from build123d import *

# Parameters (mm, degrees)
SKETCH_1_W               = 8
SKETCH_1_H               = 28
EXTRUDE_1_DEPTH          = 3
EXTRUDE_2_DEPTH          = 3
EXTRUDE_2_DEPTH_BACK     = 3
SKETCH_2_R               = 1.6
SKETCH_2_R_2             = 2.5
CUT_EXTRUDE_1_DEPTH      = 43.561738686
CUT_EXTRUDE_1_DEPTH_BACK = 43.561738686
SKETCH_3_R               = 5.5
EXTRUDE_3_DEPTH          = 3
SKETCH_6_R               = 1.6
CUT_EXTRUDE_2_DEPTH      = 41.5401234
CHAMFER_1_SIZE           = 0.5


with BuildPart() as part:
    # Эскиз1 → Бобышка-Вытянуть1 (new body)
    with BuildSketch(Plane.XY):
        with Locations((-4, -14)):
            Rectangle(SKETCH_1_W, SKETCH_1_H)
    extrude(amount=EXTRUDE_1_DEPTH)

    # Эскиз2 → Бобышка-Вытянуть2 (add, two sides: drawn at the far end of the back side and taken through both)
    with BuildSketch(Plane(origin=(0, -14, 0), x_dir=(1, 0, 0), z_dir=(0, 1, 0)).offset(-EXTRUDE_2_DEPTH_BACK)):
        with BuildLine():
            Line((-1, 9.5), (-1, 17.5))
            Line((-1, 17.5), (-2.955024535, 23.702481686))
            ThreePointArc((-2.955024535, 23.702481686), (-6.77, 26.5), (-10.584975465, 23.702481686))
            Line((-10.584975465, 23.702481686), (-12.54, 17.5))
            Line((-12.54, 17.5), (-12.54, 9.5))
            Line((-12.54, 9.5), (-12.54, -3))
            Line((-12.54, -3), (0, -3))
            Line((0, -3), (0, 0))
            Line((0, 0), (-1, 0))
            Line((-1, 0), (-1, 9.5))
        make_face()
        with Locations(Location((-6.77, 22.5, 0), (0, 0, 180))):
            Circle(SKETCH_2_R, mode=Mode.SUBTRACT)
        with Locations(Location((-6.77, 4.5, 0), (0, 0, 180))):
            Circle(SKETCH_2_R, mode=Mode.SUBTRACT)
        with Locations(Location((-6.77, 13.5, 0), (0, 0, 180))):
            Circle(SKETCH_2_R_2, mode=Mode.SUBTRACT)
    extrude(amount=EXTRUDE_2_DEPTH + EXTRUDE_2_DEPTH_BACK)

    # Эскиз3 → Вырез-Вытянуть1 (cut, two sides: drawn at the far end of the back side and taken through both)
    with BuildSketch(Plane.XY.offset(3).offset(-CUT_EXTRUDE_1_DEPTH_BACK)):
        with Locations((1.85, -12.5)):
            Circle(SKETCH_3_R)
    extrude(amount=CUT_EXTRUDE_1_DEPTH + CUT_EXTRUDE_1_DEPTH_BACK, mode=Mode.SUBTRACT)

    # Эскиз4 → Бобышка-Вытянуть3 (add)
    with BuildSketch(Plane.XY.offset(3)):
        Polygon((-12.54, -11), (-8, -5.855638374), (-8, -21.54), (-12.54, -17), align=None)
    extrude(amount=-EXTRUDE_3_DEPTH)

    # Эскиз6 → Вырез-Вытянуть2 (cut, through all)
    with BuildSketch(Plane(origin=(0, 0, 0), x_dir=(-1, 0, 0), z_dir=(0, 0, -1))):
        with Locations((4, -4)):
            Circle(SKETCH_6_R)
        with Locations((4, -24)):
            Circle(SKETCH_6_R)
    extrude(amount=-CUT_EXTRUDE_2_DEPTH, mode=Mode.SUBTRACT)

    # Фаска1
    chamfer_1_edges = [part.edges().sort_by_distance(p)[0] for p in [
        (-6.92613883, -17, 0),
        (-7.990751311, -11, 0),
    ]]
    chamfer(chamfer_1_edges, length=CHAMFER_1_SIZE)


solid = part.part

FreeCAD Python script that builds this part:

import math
import FreeCAD as App
import Part
import Sketcher
from FreeCAD import Vector
Q = App.Units.Quantity


def edges_at(feature, points):
    """Names of the edges that pass closest to the given points."""
    edges = feature.Shape.Edges
    near = lambda p: min(range(len(edges)), key=lambda i: edges[i].distToShape(Part.Vertex(*p))[0])
    return sorted({f"Edge{near(p) + 1}" for p in points})

doc = App.newDocument("Part")
body = doc.addObject("PartDesign::Body", "Body")

sketch1 = body.newObject("Sketcher::SketchObject", "Sketch")
sketch1.AttachmentSupport = (doc.getObject("XY_Plane"), [""])
sketch1.MapMode = "FlatFace"
sketch1.addGeometry(Part.LineSegment(Vector(-8, 0, 0), Vector(-8, -28, 0)), False)
sketch1.addGeometry(Part.LineSegment(Vector(-8, -28, 0), Vector(0, -28, 0)), False)
sketch1.addGeometry(Part.LineSegment(Vector(0, -28, 0), Vector(0, 0, 0)), False)
sketch1.addGeometry(Part.LineSegment(Vector(0, 0, 0), Vector(-8, 0, 0)), False)
sketch1.addConstraint(Sketcher.Constraint("Coincident", 0, 2, 1, 1))
sketch1.addConstraint(Sketcher.Constraint("Coincident", 1, 2, 2, 1))
sketch1.addConstraint(Sketcher.Constraint("Coincident", 2, 2, 3, 1))
sketch1.addConstraint(Sketcher.Constraint("Coincident", 3, 2, 0, 1))
sketch1.addConstraint(Sketcher.Constraint("Vertical", 0))
sketch1.addConstraint(Sketcher.Constraint("Horizontal", 1))
sketch1.addConstraint(Sketcher.Constraint("Vertical", 2))
sketch1.addConstraint(Sketcher.Constraint("Horizontal", 3))
sketch1.addConstraint(Sketcher.Constraint("Coincident", 2, 2, -1, 1))
sketch1.addConstraint(Sketcher.Constraint("DistanceX", 1, 1, 1, 2, 8.0))
sketch1.addConstraint(Sketcher.Constraint("DistanceY", 0, 2, 0, 1, 28.0))
pad1 = body.newObject("PartDesign::Pad", "Pad")
pad1.Profile = sketch1
pad1.Length = 3

sketch2 = body.newObject("Sketcher::SketchObject", "Sketch001")
sketch2.AttachmentSupport = (doc.getObject("XZ_Plane"), [""])
sketch2.MapMode = "FlatFace"
sketch2.AttachmentOffset = App.Placement(Vector(0, 0, 14), App.Rotation())
sketch2.addGeometry(Part.LineSegment(Vector(-1, -17.5, 0), Vector(-3, -23.7, 0)), False)
sketch2.addGeometry(Part.ArcOfCircle(Part.Circle(Vector(-6.8, -22.5, 0), Vector(0, 0, 1), 4), math.radians(-163), math.radians(-17)), False)
sketch2.addGeometry(Part.LineSegment(Vector(-10.6, -23.7, 0), Vector(-12.5, -17.5, 0)), False)
sketch2.addGeometry(Part.LineSegment(Vector(-12.5, -17.5, 0), Vector(-12.5, 3, 0)), False)
sketch2.addGeometry(Part.LineSegment(Vector(-12.5, 3, 0), Vector(0, 3, 0)), False)
sketch2.addGeometry(Part.LineSegment(Vector(0, 3, 0), Vector(0, 0, 0)), False)
sketch2.addGeometry(Part.LineSegment(Vector(0, 0, 0), Vector(-1, 0, 0)), False)
sketch2.addGeometry(Part.LineSegment(Vector(-1, 0, 0), Vector(-1, -17.5, 0)), False)
sketch2.addGeometry(Part.Circle(Vector(-6.8, -4.5, 0), Vector(0, 0, 1), 1.6), False)
sketch2.addGeometry(Part.Circle(Vector(-6.8, -13.5, 0), Vector(0, 0, 1), 2.5), False)
sketch2.addGeometry(Part.Circle(Vector(-6.8, -22.5, 0), Vector(0, 0, 1), 1.6), False)
sketch2.addConstraint(Sketcher.Constraint("Tangent", 0, 2, 1, 2))
sketch2.addConstraint(Sketcher.Constraint("Tangent", 1, 1, 2, 1))
sketch2.addConstraint(Sketcher.Constraint("Coincident", 2, 2, 3, 1))
sketch2.addConstraint(Sketcher.Constraint("Coincident", 3, 2, 4, 1))
sketch2.addConstraint(Sketcher.Constraint("Coincident", 4, 2, 5, 1))
sketch2.addConstraint(Sketcher.Constraint("Coincident", 5, 2, 6, 1))
sketch2.addConstraint(Sketcher.Constraint("Coincident", 6, 2, 7, 1))
sketch2.addConstraint(Sketcher.Constraint("Coincident", 7, 2, 0, 1))
sketch2.addConstraint(Sketcher.Constraint("Vertical", 3))
sketch2.addConstraint(Sketcher.Constraint("Horizontal", 4))
sketch2.addConstraint(Sketcher.Constraint("Vertical", 5))
sketch2.addConstraint(Sketcher.Constraint("Horizontal", 6))
sketch2.addConstraint(Sketcher.Constraint("Vertical", 7))
sketch2.addConstraint(Sketcher.Constraint("Coincident", 5, 2, -1, 1))
sketch2.addConstraint(Sketcher.Constraint("Coincident", 10, 3, 1, 3))
sketch2.addConstraint(Sketcher.Constraint("Equal", 8, 10))
sketch2.addConstraint(Sketcher.Constraint("Horizontal", 0, 2, 1, 1))
sketch2.addConstraint(Sketcher.Constraint("Horizontal", 2, 2, 7, 2))
sketch2.addConstraint(Sketcher.Constraint("Vertical", 1, 3, 8, 3))
sketch2.addConstraint(Sketcher.Constraint("Vertical", 8, 3, 9, 3))
sketch2.addConstraint(Sketcher.Constraint("Diameter", 9, 5.0))
sketch2.addConstraint(Sketcher.Constraint("Radius", 1, 4.0))
sketch2.addConstraint(Sketcher.Constraint("Diameter", 8, 3.2))
sketch2.addConstraint(Sketcher.Constraint("DistanceX", 6, 2, 6, 1, 1.0))
sketch2.addConstraint(Sketcher.Constraint("DistanceY", 5, 2, 5, 1, 3.0))
sketch2.addConstraint(Sketcher.Constraint("DistanceY", 3, 1, 3, 2, 20.5))
sketch2.addConstraint(Sketcher.Constraint("DistanceY", 1, 3, 8, 3, 18.0))
sketch2.addConstraint(Sketcher.Constraint("DistanceY", 1, 3, 9, 3, 9.0))
sketch2.addConstraint(Sketcher.Constraint("DistanceY", 2, 2, 9, 3, 4.0))
sketch2.addConstraint(Sketcher.Constraint("DistanceX", 4, 1, 4, 2, 12.54))
pad2 = body.newObject("PartDesign::Pad", "Pad001")
pad2.Profile = sketch2
pad2.Type = "TwoLengths"
pad2.Length = 3
pad2.Length2 = 3
pad2.Reversed = True

sketch3 = body.newObject("Sketcher::SketchObject", "Sketch002")
sketch3.AttachmentSupport = (doc.getObject("XY_Plane"), [""])
sketch3.MapMode = "FlatFace"
sketch3.AttachmentOffset = App.Placement(Vector(0, 0, 3), App.Rotation())
sketch3.addGeometry(Part.Circle(Vector(2, -12, 0), Vector(0, 0, 1), 6), False)
sketch3.addConstraint(Sketcher.Constraint("Diameter", 0, 11.0))
sketch3.addConstraint(Sketcher.Constraint("DistanceY", 0, 3, -1, 1, 12.5))
sketch3.addConstraint(Sketcher.Constraint("DistanceX", -1, 1, 0, 3, 1.85))
pocket1 = body.newObject("PartDesign::Pocket", "Pocket")
pocket1.Profile = sketch3
pocket1.Type = "ThroughAll"
pocket1.Midplane = True

sketch4 = body.newObject("Sketcher::SketchObject", "Sketch003")
sketch4.AttachmentSupport = (doc.getObject("XY_Plane"), [""])
sketch4.MapMode = "FlatFace"
sketch4.AttachmentOffset = App.Placement(Vector(0, 0, 3), App.Rotation())
sketch4.addGeometry(Part.LineSegment(Vector(-8, -6, 0), Vector(-13, -11, 0)), False)
sketch4.addGeometry(Part.LineSegment(Vector(-13, -11, 0), Vector(-13, -17, 0)), False)
sketch4.addGeometry(Part.LineSegment(Vector(-13, -17, 0), Vector(-8, -22, 0)), False)
sketch4.addGeometry(Part.LineSegment(Vector(-8, -22, 0), Vector(-8, -6, 0)), False)
sketch4.addConstraint(Sketcher.Constraint("Coincident", 0, 2, 1, 1))
sketch4.addConstraint(Sketcher.Constraint("Coincident", 1, 2, 2, 1))
sketch4.addConstraint(Sketcher.Constraint("Coincident", 2, 2, 3, 1))
sketch4.addConstraint(Sketcher.Constraint("Coincident", 3, 2, 0, 1))
sketch4.addConstraint(Sketcher.Constraint("Vertical", 1))
sketch4.addConstraint(Sketcher.Constraint("Vertical", 3))
sketch4.addConstraint(Sketcher.Constraint("DistanceY", 1, 2, 1, 1, 6.0))
sketch4.addConstraint(Sketcher.Constraint("Angle", 2, Q("-45 deg")))
sketch4.addConstraint(Sketcher.Constraint("DistanceY", 0, 2, -1, 1, 11.0))
sketch4.addConstraint(Sketcher.Constraint("DistanceX", 2, 2, -1, 1, 8.0))
sketch4.addConstraint(Sketcher.Constraint("DistanceX", 0, 2, -1, 1, 12.54))
sketch4.addConstraint(Sketcher.Constraint("Distance", 0, 6.861199))
pad3 = body.newObject("PartDesign::Pad", "Pad002")
pad3.Profile = sketch4
pad3.Length = 3
pad3.Reversed = True

sketch5 = body.newObject("Sketcher::SketchObject", "Sketch004")
sketch5.AttachmentSupport = (doc.getObject("XY_Plane"), [""])
sketch5.MapMode = "FlatFace"
sketch5.addGeometry(Part.Circle(Vector(-4, -4, 0), Vector(0, 0, 1), 1.6), False)
sketch5.addGeometry(Part.Circle(Vector(-4, -24, 0), Vector(0, 0, 1), 1.6), False)
sketch5.addConstraint(Sketcher.Constraint("Equal", 0, 1))
sketch5.addConstraint(Sketcher.Constraint("Vertical", 0, 3, 1, 3))
sketch5.addConstraint(Sketcher.Constraint("Diameter", 0, 3.2))
sketch5.addConstraint(Sketcher.Constraint("DistanceX", 0, 3, -1, 1, 4.0))
sketch5.addConstraint(Sketcher.Constraint("DistanceY", 0, 3, -1, 1, 4.0))
sketch5.addConstraint(Sketcher.Constraint("DistanceY", 1, 3, -1, 1, 24.0))
pocket2 = body.newObject("PartDesign::Pocket", "Pocket001")
pocket2.Profile = sketch5
pocket2.Type = "ThroughAll"
pocket2.Reversed = True
doc.recompute()

chamfer = body.newObject("PartDesign::Chamfer", "Chamfer")
chamfer.Base = (pocket2, edges_at(pocket2, [(-6.926, -17, 0), (-7.991, -11, 0)]))
chamfer.Size = 0.5

doc.recompute()
